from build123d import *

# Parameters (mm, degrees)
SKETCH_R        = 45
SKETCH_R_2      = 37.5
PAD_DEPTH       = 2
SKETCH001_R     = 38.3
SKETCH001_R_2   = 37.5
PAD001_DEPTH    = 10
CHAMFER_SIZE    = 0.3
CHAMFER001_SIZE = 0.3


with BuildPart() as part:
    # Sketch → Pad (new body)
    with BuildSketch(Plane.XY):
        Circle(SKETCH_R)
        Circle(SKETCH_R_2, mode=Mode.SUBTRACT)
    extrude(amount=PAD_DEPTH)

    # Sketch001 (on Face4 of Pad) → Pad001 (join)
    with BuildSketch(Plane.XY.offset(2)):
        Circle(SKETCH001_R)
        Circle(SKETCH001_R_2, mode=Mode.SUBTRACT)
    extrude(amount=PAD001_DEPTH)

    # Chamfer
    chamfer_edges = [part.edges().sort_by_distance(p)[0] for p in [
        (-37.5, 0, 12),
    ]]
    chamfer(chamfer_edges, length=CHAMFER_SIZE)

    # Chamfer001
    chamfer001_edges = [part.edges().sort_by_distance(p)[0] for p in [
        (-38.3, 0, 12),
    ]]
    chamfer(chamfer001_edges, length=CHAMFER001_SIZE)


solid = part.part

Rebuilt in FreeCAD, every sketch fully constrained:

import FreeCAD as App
import Part
import Sketcher
from FreeCAD import Vector


def edges_at(feature, points):
    """Names of the edges that pass closest to the given points."""
    edges = feature.Shape.Edges
    near = lambda p: min(range(len(edges)), key=lambda i: edges[i].distToShape(Part.Vertex(*p))[0])
    return sorted({f"Edge{near(p) + 1}" for p in points})

doc = App.newDocument("Part")
body = doc.addObject("PartDesign::Body", "Body")

sketch1 = body.newObject("Sketcher::SketchObject", "Sketch")
sketch1.AttachmentSupport = (doc.getObject("XY_Plane"), [""])
sketch1.MapMode = "FlatFace"
sketch1.addGeometry(Part.Circle(Vector(0, 0, 0), Vector(0, 0, 1), 45), False)
sketch1.addGeometry(Part.Circle(Vector(0, 0, 0), Vector(0, 0, 1), 38), False)
sketch1.addConstraint(Sketcher.Constraint("Coincident", 0, 3, -1, 1))
sketch1.addConstraint(Sketcher.Constraint("Coincident", 1, 3, -1, 1))
sketch1.addConstraint(Sketcher.Constraint("Diameter", 0, 90.0))
sketch1.addConstraint(Sketcher.Constraint("Diameter", 1, 75.0))
pad1 = body.newObject("PartDesign::Pad", "Pad")
pad1.Profile = sketch1
pad1.Length = 2

sketch2 = body.newObject("Sketcher::SketchObject", "Sketch001")
sketch2.AttachmentSupport = (doc.getObject("XY_Plane"), [""])
sketch2.MapMode = "FlatFace"
sketch2.AttachmentOffset = App.Placement(Vector(0, 0, 2), App.Rotation())
sketch2.addGeometry(Part.Circle(Vector(0, 0, 0), Vector(0, 0, 1), 38), False)
sketch2.addGeometry(Part.Circle(Vector(0, 0, 0), Vector(0, 0, 1), 38), False)
sketch2.addConstraint(Sketcher.Constraint("Coincident", 0, 3, -1, 1))
sketch2.addConstraint(Sketcher.Constraint("Coincident", 1, 3, -1, 1))
sketch2.addConstraint(Sketcher.Constraint("Diameter", 1, 75.0))
sketch2.addConstraint(Sketcher.Constraint("Diameter", 0, 76.6))
pad2 = body.newObject("PartDesign::Pad", "Pad001")
pad2.Profile = sketch2
pad2.Length = 10
doc.recompute()

chamfer = body.newObject("PartDesign::Chamfer", "Chamfer")
chamfer.Base = (pad2, edges_at(pad2, [(-37.5, 0, 12)]))
chamfer.Size = 0.3
doc.recompute()

chamfer2 = body.newObject("PartDesign::Chamfer", "Chamfer001")
chamfer2.Base = (chamfer, edges_at(chamfer, [(-38.3, 0, 12)]))
chamfer2.Size = 0.3

doc.recompute()
